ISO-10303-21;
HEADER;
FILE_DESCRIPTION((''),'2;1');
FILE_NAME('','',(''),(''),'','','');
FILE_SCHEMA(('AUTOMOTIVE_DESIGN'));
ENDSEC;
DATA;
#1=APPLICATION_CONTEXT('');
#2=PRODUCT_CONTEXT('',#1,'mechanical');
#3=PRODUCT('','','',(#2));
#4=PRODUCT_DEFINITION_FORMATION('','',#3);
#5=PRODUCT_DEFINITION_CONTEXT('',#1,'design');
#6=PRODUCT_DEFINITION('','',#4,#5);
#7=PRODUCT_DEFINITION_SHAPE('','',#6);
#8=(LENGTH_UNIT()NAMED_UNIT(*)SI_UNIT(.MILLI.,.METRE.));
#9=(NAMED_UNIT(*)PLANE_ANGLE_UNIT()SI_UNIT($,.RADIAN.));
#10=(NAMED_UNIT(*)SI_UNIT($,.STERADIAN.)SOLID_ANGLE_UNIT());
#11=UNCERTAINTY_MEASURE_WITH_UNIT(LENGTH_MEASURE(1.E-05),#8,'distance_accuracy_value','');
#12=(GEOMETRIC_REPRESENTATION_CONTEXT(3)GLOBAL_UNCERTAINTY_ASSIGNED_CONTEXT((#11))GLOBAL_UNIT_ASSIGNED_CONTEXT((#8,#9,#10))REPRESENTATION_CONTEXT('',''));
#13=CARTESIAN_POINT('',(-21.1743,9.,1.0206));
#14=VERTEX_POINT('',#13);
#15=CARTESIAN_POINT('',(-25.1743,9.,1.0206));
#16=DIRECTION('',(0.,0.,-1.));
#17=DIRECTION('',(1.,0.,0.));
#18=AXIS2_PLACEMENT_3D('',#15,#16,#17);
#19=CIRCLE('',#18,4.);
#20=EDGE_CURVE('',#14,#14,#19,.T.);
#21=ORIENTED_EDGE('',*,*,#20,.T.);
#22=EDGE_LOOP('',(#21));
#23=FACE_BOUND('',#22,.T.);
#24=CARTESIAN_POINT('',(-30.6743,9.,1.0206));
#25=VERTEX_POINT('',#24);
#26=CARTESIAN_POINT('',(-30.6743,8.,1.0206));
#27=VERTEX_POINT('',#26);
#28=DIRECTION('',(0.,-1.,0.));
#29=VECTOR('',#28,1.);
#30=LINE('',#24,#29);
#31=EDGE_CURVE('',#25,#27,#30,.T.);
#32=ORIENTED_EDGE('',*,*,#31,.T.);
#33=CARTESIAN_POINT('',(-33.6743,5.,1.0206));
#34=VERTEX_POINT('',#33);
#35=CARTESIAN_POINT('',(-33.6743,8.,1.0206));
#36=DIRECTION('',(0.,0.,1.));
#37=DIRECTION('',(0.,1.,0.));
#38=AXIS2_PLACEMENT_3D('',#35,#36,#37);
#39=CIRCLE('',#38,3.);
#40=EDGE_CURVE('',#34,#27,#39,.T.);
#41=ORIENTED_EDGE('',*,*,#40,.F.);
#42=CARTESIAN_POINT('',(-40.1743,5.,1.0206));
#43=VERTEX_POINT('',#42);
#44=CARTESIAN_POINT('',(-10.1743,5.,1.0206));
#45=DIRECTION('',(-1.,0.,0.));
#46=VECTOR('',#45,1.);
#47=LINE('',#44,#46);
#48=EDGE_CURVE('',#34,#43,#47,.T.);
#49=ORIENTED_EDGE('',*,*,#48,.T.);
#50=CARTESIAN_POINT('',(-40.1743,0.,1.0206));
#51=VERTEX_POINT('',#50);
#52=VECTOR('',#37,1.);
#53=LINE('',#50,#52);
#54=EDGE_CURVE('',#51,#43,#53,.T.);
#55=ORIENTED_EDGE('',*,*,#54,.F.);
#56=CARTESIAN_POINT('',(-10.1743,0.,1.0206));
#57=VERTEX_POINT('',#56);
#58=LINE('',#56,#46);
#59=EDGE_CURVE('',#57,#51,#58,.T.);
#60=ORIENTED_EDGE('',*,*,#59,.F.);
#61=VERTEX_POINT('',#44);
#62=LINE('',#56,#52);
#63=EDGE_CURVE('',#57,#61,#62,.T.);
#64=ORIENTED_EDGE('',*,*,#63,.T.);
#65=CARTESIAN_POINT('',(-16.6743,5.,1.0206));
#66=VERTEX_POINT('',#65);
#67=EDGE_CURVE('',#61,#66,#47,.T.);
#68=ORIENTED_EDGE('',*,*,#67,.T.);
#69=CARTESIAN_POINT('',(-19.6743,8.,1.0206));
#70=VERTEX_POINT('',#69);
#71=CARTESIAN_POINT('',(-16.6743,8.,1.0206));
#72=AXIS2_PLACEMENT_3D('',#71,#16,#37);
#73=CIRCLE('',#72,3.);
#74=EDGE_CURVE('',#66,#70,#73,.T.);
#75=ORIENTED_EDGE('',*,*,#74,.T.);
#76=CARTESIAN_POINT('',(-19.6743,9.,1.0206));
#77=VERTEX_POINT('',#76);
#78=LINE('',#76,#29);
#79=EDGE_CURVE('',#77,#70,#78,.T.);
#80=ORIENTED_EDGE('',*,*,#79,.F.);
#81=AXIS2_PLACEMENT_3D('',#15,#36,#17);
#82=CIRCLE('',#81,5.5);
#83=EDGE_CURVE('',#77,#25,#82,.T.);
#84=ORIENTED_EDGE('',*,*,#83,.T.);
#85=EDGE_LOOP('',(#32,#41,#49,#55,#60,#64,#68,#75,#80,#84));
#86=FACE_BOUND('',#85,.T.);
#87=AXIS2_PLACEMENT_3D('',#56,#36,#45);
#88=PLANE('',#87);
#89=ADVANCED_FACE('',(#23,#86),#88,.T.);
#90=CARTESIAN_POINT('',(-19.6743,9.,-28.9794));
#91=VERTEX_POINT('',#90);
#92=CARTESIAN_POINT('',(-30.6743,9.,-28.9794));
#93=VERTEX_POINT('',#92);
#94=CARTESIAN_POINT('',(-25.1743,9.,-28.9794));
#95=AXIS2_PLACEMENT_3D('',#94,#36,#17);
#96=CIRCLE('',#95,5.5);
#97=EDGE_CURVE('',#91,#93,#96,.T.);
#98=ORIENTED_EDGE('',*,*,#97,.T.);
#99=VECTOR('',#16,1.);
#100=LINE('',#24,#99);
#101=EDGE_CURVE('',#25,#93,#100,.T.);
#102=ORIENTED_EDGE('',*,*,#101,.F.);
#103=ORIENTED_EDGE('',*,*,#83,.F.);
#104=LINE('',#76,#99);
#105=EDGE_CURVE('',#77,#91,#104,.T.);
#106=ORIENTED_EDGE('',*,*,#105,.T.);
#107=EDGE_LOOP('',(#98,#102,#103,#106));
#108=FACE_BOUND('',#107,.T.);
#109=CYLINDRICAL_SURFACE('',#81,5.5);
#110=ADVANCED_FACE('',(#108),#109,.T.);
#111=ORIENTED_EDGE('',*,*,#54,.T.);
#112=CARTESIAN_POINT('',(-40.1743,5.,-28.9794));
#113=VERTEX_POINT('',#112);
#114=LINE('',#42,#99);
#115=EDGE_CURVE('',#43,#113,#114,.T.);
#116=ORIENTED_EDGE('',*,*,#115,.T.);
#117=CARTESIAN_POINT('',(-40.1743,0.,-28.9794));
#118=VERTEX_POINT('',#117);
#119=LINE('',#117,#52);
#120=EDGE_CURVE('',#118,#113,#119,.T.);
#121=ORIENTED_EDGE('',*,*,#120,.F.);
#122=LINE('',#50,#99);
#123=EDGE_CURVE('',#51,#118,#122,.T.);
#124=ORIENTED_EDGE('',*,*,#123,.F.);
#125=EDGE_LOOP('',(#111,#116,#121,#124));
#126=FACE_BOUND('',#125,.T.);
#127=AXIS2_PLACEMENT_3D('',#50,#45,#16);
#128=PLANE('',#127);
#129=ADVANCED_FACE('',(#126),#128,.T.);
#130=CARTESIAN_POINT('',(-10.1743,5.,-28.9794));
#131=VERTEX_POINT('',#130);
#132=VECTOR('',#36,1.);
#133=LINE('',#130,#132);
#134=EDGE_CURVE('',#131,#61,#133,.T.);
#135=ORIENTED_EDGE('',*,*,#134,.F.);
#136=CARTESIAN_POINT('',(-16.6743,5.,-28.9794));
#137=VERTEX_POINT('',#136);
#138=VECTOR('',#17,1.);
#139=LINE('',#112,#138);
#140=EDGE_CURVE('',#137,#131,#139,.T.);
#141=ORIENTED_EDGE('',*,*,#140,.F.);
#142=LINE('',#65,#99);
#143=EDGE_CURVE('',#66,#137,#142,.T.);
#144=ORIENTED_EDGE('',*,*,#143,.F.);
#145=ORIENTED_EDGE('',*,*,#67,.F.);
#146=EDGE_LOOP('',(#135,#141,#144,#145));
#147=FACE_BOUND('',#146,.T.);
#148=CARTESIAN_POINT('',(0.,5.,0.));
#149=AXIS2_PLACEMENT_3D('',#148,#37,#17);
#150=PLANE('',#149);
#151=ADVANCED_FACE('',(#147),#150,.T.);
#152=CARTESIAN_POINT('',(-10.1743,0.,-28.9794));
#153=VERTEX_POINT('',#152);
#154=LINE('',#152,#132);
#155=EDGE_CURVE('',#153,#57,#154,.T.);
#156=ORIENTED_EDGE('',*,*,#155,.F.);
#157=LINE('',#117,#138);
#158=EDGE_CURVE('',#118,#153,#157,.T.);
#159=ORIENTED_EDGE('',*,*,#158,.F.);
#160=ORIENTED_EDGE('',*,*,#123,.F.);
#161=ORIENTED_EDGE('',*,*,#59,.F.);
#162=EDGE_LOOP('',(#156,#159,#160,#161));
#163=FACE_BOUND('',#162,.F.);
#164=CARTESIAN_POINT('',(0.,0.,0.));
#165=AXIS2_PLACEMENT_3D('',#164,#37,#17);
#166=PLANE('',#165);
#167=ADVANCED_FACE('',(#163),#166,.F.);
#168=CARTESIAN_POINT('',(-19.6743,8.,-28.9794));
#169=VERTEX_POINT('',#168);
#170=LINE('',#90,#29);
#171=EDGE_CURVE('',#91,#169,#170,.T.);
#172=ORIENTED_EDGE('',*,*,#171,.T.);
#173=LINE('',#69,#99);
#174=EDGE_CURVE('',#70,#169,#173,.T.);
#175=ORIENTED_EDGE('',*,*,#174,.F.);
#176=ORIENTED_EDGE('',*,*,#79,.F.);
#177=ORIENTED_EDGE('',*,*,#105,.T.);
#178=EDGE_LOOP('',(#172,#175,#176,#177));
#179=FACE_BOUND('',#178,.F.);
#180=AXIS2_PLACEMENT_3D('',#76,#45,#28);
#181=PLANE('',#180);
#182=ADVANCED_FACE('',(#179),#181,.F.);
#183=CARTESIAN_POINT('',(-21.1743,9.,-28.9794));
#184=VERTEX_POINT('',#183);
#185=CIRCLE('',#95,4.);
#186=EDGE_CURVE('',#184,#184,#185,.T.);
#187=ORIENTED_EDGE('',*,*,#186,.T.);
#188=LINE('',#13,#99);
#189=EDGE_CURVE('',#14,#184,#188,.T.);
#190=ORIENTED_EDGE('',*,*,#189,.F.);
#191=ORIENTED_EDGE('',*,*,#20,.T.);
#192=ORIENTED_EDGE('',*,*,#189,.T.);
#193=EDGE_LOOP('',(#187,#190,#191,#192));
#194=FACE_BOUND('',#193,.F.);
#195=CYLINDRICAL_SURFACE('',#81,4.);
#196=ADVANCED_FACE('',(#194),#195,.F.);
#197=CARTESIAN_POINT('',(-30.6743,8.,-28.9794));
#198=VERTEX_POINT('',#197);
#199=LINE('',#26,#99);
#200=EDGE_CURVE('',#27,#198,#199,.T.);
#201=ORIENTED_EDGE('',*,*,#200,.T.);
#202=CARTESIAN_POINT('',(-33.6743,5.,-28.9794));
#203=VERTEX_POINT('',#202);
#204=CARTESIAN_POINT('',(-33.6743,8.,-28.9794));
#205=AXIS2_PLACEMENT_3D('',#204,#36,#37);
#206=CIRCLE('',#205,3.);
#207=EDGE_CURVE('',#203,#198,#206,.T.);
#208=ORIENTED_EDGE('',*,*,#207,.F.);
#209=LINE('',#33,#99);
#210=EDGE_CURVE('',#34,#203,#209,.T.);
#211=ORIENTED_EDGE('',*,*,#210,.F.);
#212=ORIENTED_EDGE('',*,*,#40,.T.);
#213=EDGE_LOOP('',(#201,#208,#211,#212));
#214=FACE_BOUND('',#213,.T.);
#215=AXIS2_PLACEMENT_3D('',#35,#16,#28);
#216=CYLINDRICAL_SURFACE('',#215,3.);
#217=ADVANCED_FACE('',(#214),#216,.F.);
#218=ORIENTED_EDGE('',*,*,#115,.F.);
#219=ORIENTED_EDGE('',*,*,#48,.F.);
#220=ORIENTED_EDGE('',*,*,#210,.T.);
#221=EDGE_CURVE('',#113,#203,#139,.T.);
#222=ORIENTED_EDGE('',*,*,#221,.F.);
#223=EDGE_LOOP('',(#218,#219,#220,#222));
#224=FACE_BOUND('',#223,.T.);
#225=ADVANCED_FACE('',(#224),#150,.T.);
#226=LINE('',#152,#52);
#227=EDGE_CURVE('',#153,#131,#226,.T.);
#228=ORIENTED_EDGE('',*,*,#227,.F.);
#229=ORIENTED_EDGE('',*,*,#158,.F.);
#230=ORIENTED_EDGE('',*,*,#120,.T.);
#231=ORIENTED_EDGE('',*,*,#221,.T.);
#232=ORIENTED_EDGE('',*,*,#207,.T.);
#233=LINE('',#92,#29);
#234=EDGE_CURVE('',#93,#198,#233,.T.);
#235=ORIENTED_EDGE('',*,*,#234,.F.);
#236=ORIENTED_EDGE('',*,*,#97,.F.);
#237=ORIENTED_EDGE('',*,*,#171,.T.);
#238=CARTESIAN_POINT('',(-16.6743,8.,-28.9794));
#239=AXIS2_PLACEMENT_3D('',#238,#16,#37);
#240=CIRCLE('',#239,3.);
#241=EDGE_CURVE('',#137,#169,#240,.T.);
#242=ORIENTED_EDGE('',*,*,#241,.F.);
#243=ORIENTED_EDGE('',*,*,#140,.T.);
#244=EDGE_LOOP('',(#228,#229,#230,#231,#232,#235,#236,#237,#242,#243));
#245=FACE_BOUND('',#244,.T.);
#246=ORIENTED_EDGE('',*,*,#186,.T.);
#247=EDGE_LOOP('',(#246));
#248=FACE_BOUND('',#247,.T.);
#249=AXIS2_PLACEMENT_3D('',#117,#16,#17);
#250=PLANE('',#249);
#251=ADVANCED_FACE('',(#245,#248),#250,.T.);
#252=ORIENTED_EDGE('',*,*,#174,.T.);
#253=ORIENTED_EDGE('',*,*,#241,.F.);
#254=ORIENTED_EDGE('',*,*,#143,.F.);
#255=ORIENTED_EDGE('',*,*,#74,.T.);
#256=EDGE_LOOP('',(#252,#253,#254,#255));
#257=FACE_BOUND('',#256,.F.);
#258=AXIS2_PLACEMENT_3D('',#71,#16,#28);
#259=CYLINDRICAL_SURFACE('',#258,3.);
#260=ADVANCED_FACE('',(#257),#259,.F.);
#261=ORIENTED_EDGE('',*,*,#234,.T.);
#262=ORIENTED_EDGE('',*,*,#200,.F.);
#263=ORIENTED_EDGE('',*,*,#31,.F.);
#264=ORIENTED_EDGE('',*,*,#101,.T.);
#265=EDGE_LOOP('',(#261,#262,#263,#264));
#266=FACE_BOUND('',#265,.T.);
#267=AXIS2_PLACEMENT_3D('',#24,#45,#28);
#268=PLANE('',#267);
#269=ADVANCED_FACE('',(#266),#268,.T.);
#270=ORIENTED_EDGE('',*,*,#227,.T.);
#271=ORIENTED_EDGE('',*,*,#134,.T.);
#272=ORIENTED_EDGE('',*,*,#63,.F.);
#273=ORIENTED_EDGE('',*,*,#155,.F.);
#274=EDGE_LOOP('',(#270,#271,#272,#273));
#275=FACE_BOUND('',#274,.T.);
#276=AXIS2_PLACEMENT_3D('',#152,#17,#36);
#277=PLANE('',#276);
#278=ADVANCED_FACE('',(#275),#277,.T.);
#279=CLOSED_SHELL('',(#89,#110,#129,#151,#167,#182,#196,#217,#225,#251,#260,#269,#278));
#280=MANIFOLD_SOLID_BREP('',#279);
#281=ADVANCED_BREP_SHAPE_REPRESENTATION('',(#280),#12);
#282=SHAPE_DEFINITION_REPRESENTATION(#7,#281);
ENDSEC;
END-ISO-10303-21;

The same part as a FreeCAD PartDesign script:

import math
import FreeCAD as App
import Part
import Sketcher
from FreeCAD import Vector


def edges_at(feature, points):
    """Names of the edges that pass closest to the given points."""
    edges = feature.Shape.Edges
    near = lambda p: min(range(len(edges)), key=lambda i: edges[i].distToShape(Part.Vertex(*p))[0])
    return sorted({f"Edge{near(p) + 1}" for p in points})


def add_polygon(sketch, points):
    """Adds a closed chain of lines whose ends are joined by coincident constraints."""
    first, n = sketch.GeometryCount, len(points)
    for a, b in zip(points, points[1:] + points[:1]):
        sketch.addGeometry(Part.LineSegment(App.Vector(*a, 0), App.Vector(*b, 0)), False)
    for i in range(n):
        sketch.addConstraint(Sketcher.Constraint("Coincident", first + i, 2, first + (i + 1) % n, 1))

doc = App.newDocument("Part")
body = doc.addObject("PartDesign::Body", "Body")

# Sketch on XZ plane
sketch1 = body.newObject("Sketcher::SketchObject", "Sketch")
sketch1.AttachmentSupport = (doc.getObject("XZ_Plane"), [""])
sketch1.MapMode = "FlatFace"
add_polygon(sketch1, [(-10, -29), (-40, -29), (-40, 1), (-10, 1)])  # lines 0-3
sketch1.addConstraint([
    Sketcher.Constraint("Horizontal", 0),
    Sketcher.Constraint("Vertical", 1),
    Sketcher.Constraint("Horizontal", 2),
    Sketcher.Constraint("Vertical", 3),
    Sketcher.Constraint("Equal", 2, 1),
    Sketcher.Constraint("DistanceX", 0, 2, 0, 1, 30.0),
    Sketcher.Constraint("DistanceX", 0, 2, -1, 1, 40.1743),
    Sketcher.Constraint("DistanceY", 0, 2, -1, 1, 28.9794),
])
pad1 = body.newObject("PartDesign::Pad", "Pad")
pad1.Profile = sketch1
pad1.Length = 5
pad1.Reversed = True

# Sketch on XY plane
sketch2 = body.newObject("Sketcher::SketchObject", "Sketch001")
sketch2.AttachmentSupport = (doc.getObject("XY_Plane"), [""])
sketch2.MapMode = "FlatFace"
sketch2.AttachmentOffset = App.Placement(Vector(0, 0, 1.0206), App.Rotation())
sketch2.addGeometry([
    Part.LineSegment(Vector(-25.2, 5, 0), Vector(-19.7, 5, 0)),  # 0
    Part.LineSegment(Vector(-19.7, 5, 0), Vector(-19.7, 9, 0)),  # 1
    Part.ArcOfCircle(Part.Circle(Vector(-25.2, 9, 0), Vector(0, 0, 1), 5.5), math.radians(0), math.radians(180)),  # 2
    Part.LineSegment(Vector(-30.7, 9, 0), Vector(-30.7, 5, 0)),  # 3
    Part.LineSegment(Vector(-30.7, 5, 0), Vector(-25.2, 5, 0)),  # 4
    Part.Circle(Vector(-25.2, 9, 0), Vector(0, 0, 1), 4),  # 5
], False)
sketch2.addConstraint([
    Sketcher.Constraint("Coincident", 0, 2, 1, 1),
    Sketcher.Constraint("Tangent", 1, 2, 2, 1),
    Sketcher.Constraint("Tangent", 2, 2, 3, 1),
    Sketcher.Constraint("Coincident", 3, 2, 4, 1),
    Sketcher.Constraint("Coincident", 4, 2, 0, 1),
    Sketcher.Constraint("Horizontal", 0),
    Sketcher.Constraint("Vertical", 1),
    Sketcher.Constraint("Vertical", 3),
    Sketcher.Constraint("Horizontal", 4),
    Sketcher.Constraint("Coincident", 5, 3, 2, 3),
    Sketcher.Constraint("Vertical", 5, 3, 4, 2),
    Sketcher.Constraint("Diameter", 5, 8.0),
    Sketcher.Constraint("Radius", 2, 5.5),
    Sketcher.Constraint("DistanceY", 1, 1, 1, 2, 4.0),
    Sketcher.Constraint("DistanceY", -1, 1, 2, 3, 9.0),
    Sketcher.Constraint("DistanceX", 2, 3, -1, 1, 25.1743),
])
pad2 = body.newObject("PartDesign::Pad", "Pad001")
pad2.Profile = sketch2
pad2.Length = 30
pad2.Reversed = True
doc.recompute()

fillet = body.newObject("PartDesign::Fillet", "Fillet")
fillet.Base = (pad2, edges_at(pad2, [(-19.674, 5, -13.979), (-30.674, 5, -13.979)]))
fillet.Radius = 3

doc.recompute()
